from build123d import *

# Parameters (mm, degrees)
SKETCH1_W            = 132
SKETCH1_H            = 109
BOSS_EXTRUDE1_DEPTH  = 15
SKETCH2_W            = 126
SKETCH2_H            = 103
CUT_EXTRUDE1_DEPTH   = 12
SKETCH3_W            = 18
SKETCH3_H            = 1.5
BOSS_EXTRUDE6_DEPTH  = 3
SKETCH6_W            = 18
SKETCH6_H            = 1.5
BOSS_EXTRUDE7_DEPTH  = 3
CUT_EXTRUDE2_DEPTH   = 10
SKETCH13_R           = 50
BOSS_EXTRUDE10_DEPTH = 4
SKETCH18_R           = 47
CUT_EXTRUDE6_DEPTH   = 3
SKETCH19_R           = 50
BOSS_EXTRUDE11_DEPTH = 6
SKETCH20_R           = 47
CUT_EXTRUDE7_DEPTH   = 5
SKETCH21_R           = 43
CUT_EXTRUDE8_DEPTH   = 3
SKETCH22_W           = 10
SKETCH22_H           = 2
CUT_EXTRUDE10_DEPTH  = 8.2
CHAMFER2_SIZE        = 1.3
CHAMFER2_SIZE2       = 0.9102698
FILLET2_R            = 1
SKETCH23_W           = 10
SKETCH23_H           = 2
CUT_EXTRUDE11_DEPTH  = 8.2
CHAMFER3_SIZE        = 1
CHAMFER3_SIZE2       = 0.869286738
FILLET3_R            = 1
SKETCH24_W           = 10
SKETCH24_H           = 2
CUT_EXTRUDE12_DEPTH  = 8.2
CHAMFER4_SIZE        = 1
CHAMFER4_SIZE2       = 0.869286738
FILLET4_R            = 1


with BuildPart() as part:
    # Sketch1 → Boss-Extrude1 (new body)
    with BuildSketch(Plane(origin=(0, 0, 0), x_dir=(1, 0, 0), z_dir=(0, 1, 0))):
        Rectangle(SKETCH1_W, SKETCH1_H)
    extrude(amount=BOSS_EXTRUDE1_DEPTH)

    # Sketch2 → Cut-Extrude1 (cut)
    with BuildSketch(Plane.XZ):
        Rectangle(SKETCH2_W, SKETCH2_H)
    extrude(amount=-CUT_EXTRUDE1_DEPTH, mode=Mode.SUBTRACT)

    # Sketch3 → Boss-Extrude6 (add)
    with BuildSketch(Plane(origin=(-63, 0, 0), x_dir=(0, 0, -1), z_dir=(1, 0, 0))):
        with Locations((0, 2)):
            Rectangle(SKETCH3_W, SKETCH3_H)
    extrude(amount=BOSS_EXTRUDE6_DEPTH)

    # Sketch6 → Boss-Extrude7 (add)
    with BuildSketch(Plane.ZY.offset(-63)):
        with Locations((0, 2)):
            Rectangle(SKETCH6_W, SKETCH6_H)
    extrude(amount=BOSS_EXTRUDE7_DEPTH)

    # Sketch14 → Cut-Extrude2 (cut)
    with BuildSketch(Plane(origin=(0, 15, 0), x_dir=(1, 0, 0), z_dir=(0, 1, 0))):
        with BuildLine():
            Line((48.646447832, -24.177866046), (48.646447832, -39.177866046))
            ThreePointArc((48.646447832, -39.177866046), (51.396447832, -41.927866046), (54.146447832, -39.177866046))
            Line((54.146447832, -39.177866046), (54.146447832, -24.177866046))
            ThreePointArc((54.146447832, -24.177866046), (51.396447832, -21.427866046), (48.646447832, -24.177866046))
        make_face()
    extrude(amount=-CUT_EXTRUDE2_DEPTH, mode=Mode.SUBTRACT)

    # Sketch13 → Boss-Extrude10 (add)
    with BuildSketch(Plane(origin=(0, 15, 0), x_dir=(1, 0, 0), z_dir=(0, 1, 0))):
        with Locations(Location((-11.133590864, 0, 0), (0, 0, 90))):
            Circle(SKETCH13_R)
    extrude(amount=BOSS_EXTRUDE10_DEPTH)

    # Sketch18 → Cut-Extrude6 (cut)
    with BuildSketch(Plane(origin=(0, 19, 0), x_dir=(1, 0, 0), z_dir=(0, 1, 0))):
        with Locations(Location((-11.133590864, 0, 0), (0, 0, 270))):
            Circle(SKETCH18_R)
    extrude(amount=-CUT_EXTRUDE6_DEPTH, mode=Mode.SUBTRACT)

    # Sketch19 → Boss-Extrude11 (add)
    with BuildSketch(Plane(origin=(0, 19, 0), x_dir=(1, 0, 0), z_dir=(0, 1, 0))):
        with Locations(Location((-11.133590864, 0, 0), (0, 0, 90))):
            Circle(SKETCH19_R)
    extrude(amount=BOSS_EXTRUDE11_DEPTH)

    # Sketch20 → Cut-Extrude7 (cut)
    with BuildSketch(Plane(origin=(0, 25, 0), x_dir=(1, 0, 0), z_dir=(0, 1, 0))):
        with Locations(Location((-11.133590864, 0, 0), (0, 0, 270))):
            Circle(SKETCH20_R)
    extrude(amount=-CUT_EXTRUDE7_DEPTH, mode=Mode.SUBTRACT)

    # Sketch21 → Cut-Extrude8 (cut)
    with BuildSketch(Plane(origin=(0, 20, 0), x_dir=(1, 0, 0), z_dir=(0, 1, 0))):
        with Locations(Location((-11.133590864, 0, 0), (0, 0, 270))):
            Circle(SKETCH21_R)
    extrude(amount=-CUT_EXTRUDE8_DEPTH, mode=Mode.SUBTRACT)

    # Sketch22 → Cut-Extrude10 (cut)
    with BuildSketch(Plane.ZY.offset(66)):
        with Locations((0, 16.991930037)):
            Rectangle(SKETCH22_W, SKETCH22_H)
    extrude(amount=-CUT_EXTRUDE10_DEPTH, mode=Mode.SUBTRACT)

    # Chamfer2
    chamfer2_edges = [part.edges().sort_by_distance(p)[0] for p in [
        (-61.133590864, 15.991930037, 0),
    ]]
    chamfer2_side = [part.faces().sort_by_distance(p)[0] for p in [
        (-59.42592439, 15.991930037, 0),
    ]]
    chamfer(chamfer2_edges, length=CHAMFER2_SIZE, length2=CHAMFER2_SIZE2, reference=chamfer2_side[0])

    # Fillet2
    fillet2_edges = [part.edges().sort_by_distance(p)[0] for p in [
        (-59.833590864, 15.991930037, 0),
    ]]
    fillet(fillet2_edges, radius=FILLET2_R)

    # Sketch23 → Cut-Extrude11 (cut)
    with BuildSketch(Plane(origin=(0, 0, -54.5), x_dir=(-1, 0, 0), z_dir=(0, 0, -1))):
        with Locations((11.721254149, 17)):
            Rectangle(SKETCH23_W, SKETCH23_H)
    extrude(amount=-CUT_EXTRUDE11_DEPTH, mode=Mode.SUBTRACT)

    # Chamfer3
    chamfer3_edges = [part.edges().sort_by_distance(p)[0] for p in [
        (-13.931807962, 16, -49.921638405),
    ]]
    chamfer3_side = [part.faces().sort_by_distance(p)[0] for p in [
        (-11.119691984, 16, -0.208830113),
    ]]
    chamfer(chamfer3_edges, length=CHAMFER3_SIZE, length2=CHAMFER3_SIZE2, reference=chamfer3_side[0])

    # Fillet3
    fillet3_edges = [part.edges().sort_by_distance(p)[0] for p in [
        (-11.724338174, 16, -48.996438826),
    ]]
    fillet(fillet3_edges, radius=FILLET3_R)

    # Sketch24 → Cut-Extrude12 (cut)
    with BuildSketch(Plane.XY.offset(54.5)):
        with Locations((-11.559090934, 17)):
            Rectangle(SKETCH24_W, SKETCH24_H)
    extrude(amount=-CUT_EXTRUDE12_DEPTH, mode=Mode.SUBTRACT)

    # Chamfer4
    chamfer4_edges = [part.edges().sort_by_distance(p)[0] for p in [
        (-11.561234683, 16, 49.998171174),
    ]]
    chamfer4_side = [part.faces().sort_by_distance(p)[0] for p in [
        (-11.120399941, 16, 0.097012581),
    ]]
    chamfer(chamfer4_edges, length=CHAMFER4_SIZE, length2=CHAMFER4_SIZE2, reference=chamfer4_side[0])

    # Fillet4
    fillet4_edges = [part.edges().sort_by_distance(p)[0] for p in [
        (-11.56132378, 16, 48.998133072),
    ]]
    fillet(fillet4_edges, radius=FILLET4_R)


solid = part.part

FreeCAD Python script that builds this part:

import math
import FreeCAD as App
import Part
import Sketcher
Q = App.Units.Quantity


def edges_at(feature, points):
    """Names of the edges that pass closest to the given points."""
    edges = feature.Shape.Edges
    near = lambda p: min(range(len(edges)), key=lambda i: edges[i].distToShape(Part.Vertex(*p))[0])
    return sorted({f"Edge{near(p) + 1}" for p in points})


def add_polygon(sketch, points):
    """Adds a closed chain of lines whose ends are joined by coincident constraints."""
    first, n = sketch.GeometryCount, len(points)
    for a, b in zip(points, points[1:] + points[:1]):
        sketch.addGeometry(Part.LineSegment(App.Vector(*a, 0), App.Vector(*b, 0)), False)
    for i in range(n):
        sketch.addConstraint(Sketcher.Constraint("Coincident", first + i, 2, first + (i + 1) % n, 1))

doc = App.newDocument("Part")
params = doc.addObject("Spreadsheet::Sheet", "Params")
for row, (alias, value) in enumerate([
    ("sketch1_width", "132 mm"),
    ("sketch1_height", "109 mm"),
    ("pad1_length", "15 mm"),
    ("sketch2_width", "126 mm"),
    ("sketch2_height", "103 mm"),
    ("pocket1_length", "12 mm"),
    ("sketch3_height", "18 mm"),
    ("sketch3_width", "1.5 mm"),
    ("pad2_length", "3 mm"),
    ("sketch4_height", "18 mm"),
    ("sketch4_width", "1.5 mm"),
    ("pad3_length", "3 mm"),
    ("sketch5_height", "15 mm"),
    ("sketch5_radius", "2.75 mm"),
    ("pocket2_length", "10 mm"),
    ("sketch6_diameter", "100 mm"),
    ("pad4_length", "4 mm"),
    ("sketch7_diameter", "94 mm"),
    ("pocket3_length", "3 mm"),
    ("sketch8_diameter", "100 mm"),
    ("pad5_length", "6 mm"),
    ("sketch9_diameter", "94 mm"),
    ("pocket4_length", "5 mm"),
    ("sketch10_diameter", "86 mm"),
    ("pocket5_length", "3 mm"),
    ("sketch11_width", "2 mm"),
    ("sketch11_height", "10 mm"),
    ("pocket6_length", "8.2 mm"),
    ("chamfer_size", "1.3 mm"),
    ("chamfer_size2", "0.91027 mm"),
    ("fillet_radius", "1 mm"),
    ("sketch12_width", "10 mm"),
    ("sketch12_height", "2 mm"),
    ("pocket7_length", "8.2 mm"),
    ("chamfer2_size", "1 mm"),
    ("chamfer2_size2", "0.869287 mm"),
    ("fillet2_radius", "1 mm"),
    ("sketch13_width", "10 mm"),
    ("sketch13_height", "2 mm"),
    ("pocket8_length", "8.2 mm"),
    ("chamfer3_size", "1 mm"),
    ("chamfer3_size2", "0.869287 mm"),
    ("fillet3_radius", "1 mm"),
], start=1):
    params.set(f"A{row}", alias)
    params.set(f"B{row}", "=" + value)
    params.setAlias(f"B{row}", alias)

body = doc.addObject("PartDesign::Body", "Body")

# Sketch on XZ plane
sketch1 = body.newObject("Sketcher::SketchObject", "Sketch")
sketch1.AttachmentSupport = (doc.getObject("XZ_Plane"), [""])
sketch1.MapMode = "FlatFace"
add_polygon(sketch1, [(-66, -54), (-66, 54), (66, 54), (66, -54)])  # lines 0-3
sketch1.addConstraint([
    Sketcher.Constraint("Vertical", 0),
    Sketcher.Constraint("Horizontal", 1),
    Sketcher.Constraint("Vertical", 2),
    Sketcher.Constraint("Horizontal", 3),
    Sketcher.Constraint("Symmetric", 0, 2, 2, 2, -1, 1),
    Sketcher.Constraint("DistanceX", 1, 1, 1, 2, Q("132 mm")),
    Sketcher.Constraint("DistanceY", 0, 1, 0, 2, Q("109 mm")),
])
sketch1.setExpression("Constraints[9]", "Params.sketch1_width")
sketch1.setExpression("Constraints[10]", "Params.sketch1_height")
pad1 = body.newObject("PartDesign::Pad", "Pad")
pad1.Profile = sketch1
pad1.setExpression("Length", "Params.pad1_length")
pad1.Reversed = True

# Sketch on XZ plane
sketch2 = body.newObject("Sketcher::SketchObject", "Sketch001")
sketch2.AttachmentSupport = (doc.getObject("XZ_Plane"), [""])
sketch2.MapMode = "FlatFace"
add_polygon(sketch2, [(-63, 52), (-63, -52), (63, -52), (63, 52)])  # lines 0-3
sketch2.addConstraint([
    Sketcher.Constraint("Vertical", 0),
    Sketcher.Constraint("Horizontal", 1),
    Sketcher.Constraint("Vertical", 2),
    Sketcher.Constraint("Horizontal", 3),
    Sketcher.Constraint("Symmetric", 0, 2, 2, 2, -1, 1),
    Sketcher.Constraint("DistanceX", 1, 1, 1, 2, Q("126 mm")),
    Sketcher.Constraint("DistanceY", 0, 2, 0, 1, Q("103 mm")),
])
sketch2.setExpression("Constraints[9]", "Params.sketch2_width")
sketch2.setExpression("Constraints[10]", "Params.sketch2_height")
pocket1 = body.newObject("PartDesign::Pocket", "Pocket")
pocket1.Profile = sketch2
pocket1.setExpression("Length", "Params.pocket1_length")

# Sketch on YZ plane
sketch3 = body.newObject("Sketcher::SketchObject", "Sketch002")
sketch3.AttachmentSupport = (doc.getObject("YZ_Plane"), [""])
sketch3.MapMode = "FlatFace"
sketch3.AttachmentOffset = App.Placement(App.Vector(0, 0, -63), App.Rotation())
add_polygon(sketch3, [(2.8, 9), (1.2, 9), (1.2, -9), (2.8, -9)])  # lines 0-3
sketch3.addConstraint([
    Sketcher.Constraint("Horizontal", 0),
    Sketcher.Constraint("Vertical", 1),
    Sketcher.Constraint("Horizontal", 2),
    Sketcher.Constraint("Vertical", 3),
    Sketcher.Constraint("DistanceY", 1, 2, 1, 1, Q("18 mm")),
    Sketcher.Constraint("DistanceX", 0, 2, 0, 1, Q("1.5 mm")),
    Sketcher.Constraint("DistanceY", -1, 1, 0, 2, Q("9 mm")),
    Sketcher.Constraint("DistanceX", -1, 1, 0, 2, Q("1.25 mm")),
])
sketch3.setExpression("Constraints[8]", "Params.sketch3_height")
sketch3.setExpression("Constraints[9]", "Params.sketch3_width")
pad2 = body.newObject("PartDesign::Pad", "Pad001")
pad2.Profile = sketch3
pad2.setExpression("Length", "Params.pad2_length")

# Sketch on YZ plane
sketch4 = body.newObject("Sketcher::SketchObject", "Sketch003")
sketch4.AttachmentSupport = (doc.getObject("YZ_Plane"), [""])
sketch4.MapMode = "FlatFace"
sketch4.AttachmentOffset = App.Placement(App.Vector(0, 0, 63), App.Rotation())
add_polygon(sketch4, [(2.8, -9), (1.2, -9), (1.2, 9), (2.8, 9)])  # lines 0-3
sketch4.addConstraint([
    Sketcher.Constraint("Horizontal", 0),
    Sketcher.Constraint("Vertical", 1),
    Sketcher.Constraint("Horizontal", 2),
    Sketcher.Constraint("Vertical", 3),
    Sketcher.Constraint("DistanceY", 1, 1, 1, 2, Q("18 mm")),
    Sketcher.Constraint("DistanceX", 0, 2, 0, 1, Q("1.5 mm")),
    Sketcher.Constraint("DistanceY", 0, 2, -1, 1, Q("9 mm")),
    Sketcher.Constraint("DistanceX", -1, 1, 0, 2, Q("1.25 mm")),
])
sketch4.setExpression("Constraints[8]", "Params.sketch4_height")
sketch4.setExpression("Constraints[9]", "Params.sketch4_width")
pad3 = body.newObject("PartDesign::Pad", "Pad002")
pad3.Profile = sketch4
pad3.setExpression("Length", "Params.pad3_length")
pad3.Reversed = True

# Sketch on XZ plane
sketch5 = body.newObject("Sketcher::SketchObject", "Sketch004")
sketch5.AttachmentSupport = (doc.getObject("XZ_Plane"), [""])
sketch5.MapMode = "FlatFace"
sketch5.AttachmentOffset = App.Placement(App.Vector(0, 0, -15), App.Rotation())
sketch5.addGeometry([
    Part.LineSegment(App.Vector(48.6, 24.2, 0), App.Vector(48.6, 39.2, 0)),
    Part.ArcOfCircle(Part.Circle(App.Vector(51.4, 39.2, 0), App.Vector(0, 0, 1), 2.8), math.radians(0), math.radians(180)),
    Part.LineSegment(App.Vector(54.1, 39.2, 0), App.Vector(54.1, 24.2, 0)),
    Part.ArcOfCircle(Part.Circle(App.Vector(51.4, 24.2, 0), App.Vector(0, 0, 1), 2.8), math.radians(180), math.radians(360)),
], False)
sketch5.addConstraint([
    Sketcher.Constraint("Tangent", 0, 2, 1, 2),
    Sketcher.Constraint("Tangent", 1, 1, 2, 1),
    Sketcher.Constraint("Tangent", 2, 2, 3, 2),
    Sketcher.Constraint("Tangent", 3, 1, 0, 1),
    Sketcher.Constraint("Vertical", 0),
    Sketcher.Constraint("Vertical", 2),
    Sketcher.Constraint("DistanceY", 0, 1, 0, 2, Q("15 mm")),
    Sketcher.Constraint("Radius", 1, Q("2.75 mm")),
    Sketcher.Constraint("DistanceX", -1, 1, 1, 3, Q("51.396448 mm")),
    Sketcher.Constraint("DistanceY", -1, 1, 1, 3, Q("39.177866 mm")),
])
sketch5.setExpression("Constraints[6]", "Params.sketch5_height")
sketch5.setExpression("Constraints[7]", "Params.sketch5_radius")
pocket2 = body.newObject("PartDesign::Pocket", "Pocket001")
pocket2.Profile = sketch5
pocket2.setExpression("Length", "Params.pocket2_length")
pocket2.Reversed = True

# Sketch on XZ plane
sketch6 = body.newObject("Sketcher::SketchObject", "Sketch005")
sketch6.AttachmentSupport = (doc.getObject("XZ_Plane"), [""])
sketch6.MapMode = "FlatFace"
sketch6.AttachmentOffset = App.Placement(App.Vector(0, 0, -15), App.Rotation())
sketch6.addGeometry(Part.Circle(App.Vector(-11, 0, 0), App.Vector(0, 0, 1), 50), False)
sketch6.addConstraint([
    Sketcher.Constraint("PointOnObject", 0, 3, -1),
    Sketcher.Constraint("Diameter", 0, Q("100 mm")),
    Sketcher.Constraint("DistanceX", 0, 3, -1, 1, Q("11.133591 mm")),
])
sketch6.setExpression("Constraints[1]", "Params.sketch6_diameter")
pad4 = body.newObject("PartDesign::Pad", "Pad003")
pad4.Profile = sketch6
pad4.setExpression("Length", "Params.pad4_length")
pad4.Reversed = True

# Sketch on XZ plane
sketch7 = body.newObject("Sketcher::SketchObject", "Sketch006")
sketch7.AttachmentSupport = (doc.getObject("XZ_Plane"), [""])
sketch7.MapMode = "FlatFace"
sketch7.AttachmentOffset = App.Placement(App.Vector(0, 0, -19), App.Rotation())
sketch7.addGeometry(Part.Circle(App.Vector(-11, 0, 0), App.Vector(0, 0, 1), 47), False)
sketch7.addConstraint([
    Sketcher.Constraint("PointOnObject", 0, 3, -1),
    Sketcher.Constraint("Diameter", 0, Q("94 mm")),
    Sketcher.Constraint("DistanceX", 0, 3, -1, 1, Q("11.133591 mm")),
])
sketch7.setExpression("Constraints[1]", "Params.sketch7_diameter")
pocket3 = body.newObject("PartDesign::Pocket", "Pocket002")
pocket3.Profile = sketch7
pocket3.setExpression("Length", "Params.pocket3_length")
pocket3.Reversed = True

# Sketch on XZ plane
sketch8 = body.newObject("Sketcher::SketchObject", "Sketch007")
sketch8.AttachmentSupport = (doc.getObject("XZ_Plane"), [""])
sketch8.MapMode = "FlatFace"
sketch8.AttachmentOffset = App.Placement(App.Vector(0, 0, -19), App.Rotation())
sketch8.addGeometry(Part.Circle(App.Vector(-11, 0, 0), App.Vector(0, 0, 1), 50), False)
sketch8.addConstraint([
    Sketcher.Constraint("PointOnObject", 0, 3, -1),
    Sketcher.Constraint("Diameter", 0, Q("100 mm")),
    Sketcher.Constraint("DistanceX", 0, 3, -1, 1, Q("11.133591 mm")),
])
sketch8.setExpression("Constraints[1]", "Params.sketch8_diameter")
pad5 = body.newObject("PartDesign::Pad", "Pad004")
pad5.Profile = sketch8
pad5.setExpression("Length", "Params.pad5_length")
pad5.Reversed = True

# Sketch on XZ plane
sketch9 = body.newObject("Sketcher::SketchObject", "Sketch008")
sketch9.AttachmentSupport = (doc.getObject("XZ_Plane"), [""])
sketch9.MapMode = "FlatFace"
sketch9.AttachmentOffset = App.Placement(App.Vector(0, 0, -25), App.Rotation())
sketch9.addGeometry(Part.Circle(App.Vector(-11, 0, 0), App.Vector(0, 0, 1), 47), False)
sketch9.addConstraint([
    Sketcher.Constraint("PointOnObject", 0, 3, -1),
    Sketcher.Constraint("Diameter", 0, Q("94 mm")),
    Sketcher.Constraint("DistanceX", 0, 3, -1, 1, Q("11.133591 mm")),
])
sketch9.setExpression("Constraints[1]", "Params.sketch9_diameter")
pocket4 = body.newObject("PartDesign::Pocket", "Pocket003")
pocket4.Profile = sketch9
pocket4.setExpression("Length", "Params.pocket4_length")
pocket4.Reversed = True

# Sketch on XZ plane
sketch10 = body.newObject("Sketcher::SketchObject", "Sketch009")
sketch10.AttachmentSupport = (doc.getObject("XZ_Plane"), [""])
sketch10.MapMode = "FlatFace"
sketch10.AttachmentOffset = App.Placement(App.Vector(0, 0, -20), App.Rotation())
sketch10.addGeometry(Part.Circle(App.Vector(-11, 0, 0), App.Vector(0, 0, 1), 43), False)
sketch10.addConstraint([
    Sketcher.Constraint("PointOnObject", 0, 3, -1),
    Sketcher.Constraint("Diameter", 0, Q("86 mm")),
    Sketcher.Constraint("DistanceX", 0, 3, -1, 1, Q("11.133591 mm")),
])
sketch10.setExpression("Constraints[1]", "Params.sketch10_diameter")
pocket5 = body.newObject("PartDesign::Pocket", "Pocket004")
pocket5.Profile = sketch10
pocket5.setExpression("Length", "Params.pocket5_length")
pocket5.Reversed = True

# Sketch on YZ plane
sketch11 = body.newObject("Sketcher::SketchObject", "Sketch010")
sketch11.AttachmentSupport = (doc.getObject("YZ_Plane"), [""])
sketch11.MapMode = "FlatFace"
sketch11.AttachmentOffset = App.Placement(App.Vector(0, 0, -66), App.Rotation())
add_polygon(sketch11, [(18, -5), (16, -5), (16, 5), (18, 5)])  # lines 0-3
sketch11.addConstraint([
    Sketcher.Constraint("Horizontal", 0),
    Sketcher.Constraint("Vertical", 1),
    Sketcher.Constraint("Horizontal", 2),
    Sketcher.Constraint("Vertical", 3),
    Sketcher.Constraint("DistanceX", 0, 2, 0, 1, Q("2 mm")),
    Sketcher.Constraint("DistanceY", 1, 1, 1, 2, Q("10 mm")),
    Sketcher.Constraint("DistanceY", 0, 2, -1, 1, Q("5 mm")),
    Sketcher.Constraint("DistanceX", -1, 1, 0, 2, Q("15.99193 mm")),
])
sketch11.setExpression("Constraints[8]", "Params.sketch11_width")
sketch11.setExpression("Constraints[9]", "Params.sketch11_height")
pocket6 = body.newObject("PartDesign::Pocket", "Pocket005")
pocket6.Profile = sketch11
pocket6.setExpression("Length", "Params.pocket6_length")
pocket6.Reversed = True
doc.recompute()

chamfer = body.newObject("PartDesign::Chamfer", "Chamfer")
chamfer.Base = (pocket6, edges_at(pocket6, [(-61.134, 15.992, 0)]))
chamfer.ChamferType = "Two distances"
chamfer.setExpression("Size", "Params.chamfer_size")
chamfer.setExpression("Size2", "Params.chamfer_size2")
chamfer.FlipDirection = True
doc.recompute()

fillet = body.newObject("PartDesign::Fillet", "Fillet")
fillet.Base = (chamfer, edges_at(chamfer, [(-59.834, 15.992, 0)]))
fillet.setExpression("Radius", "Params.fillet_radius")

# Sketch on XY plane
sketch12 = body.newObject("Sketcher::SketchObject", "Sketch011")
sketch12.AttachmentSupport = (doc.getObject("XY_Plane"), [""])
sketch12.MapMode = "FlatFace"
sketch12.AttachmentOffset = App.Placement(App.Vector(0, 0, -54.5), App.Rotation())
add_polygon(sketch12, [(-6.7, 18), (-6.7, 16), (-16.7, 16), (-16.7, 18)])  # lines 0-3
sketch12.addConstraint([
    Sketcher.Constraint("Vertical", 0),
    Sketcher.Constraint("Horizontal", 1),
    Sketcher.Constraint("Vertical", 2),
    Sketcher.Constraint("Horizontal", 3),
    Sketcher.Constraint("DistanceX", 1, 2, 1, 1, Q("10 mm")),
    Sketcher.Constraint("DistanceY", 0, 2, 0, 1, Q("2 mm")),
    Sketcher.Constraint("DistanceY", -1, 1, 0, 2, Q("16 mm")),
    Sketcher.Constraint("DistanceX", 0, 2, -1, 1, Q("6.721254 mm")),
])
sketch12.setExpression("Constraints[8]", "Params.sketch12_width")
sketch12.setExpression("Constraints[9]", "Params.sketch12_height")
pocket7 = body.newObject("PartDesign::Pocket", "Pocket006")
pocket7.Profile = sketch12
pocket7.setExpression("Length", "Params.pocket7_length")
pocket7.Reversed = True
doc.recompute()

chamfer2 = body.newObject("PartDesign::Chamfer", "Chamfer001")
chamfer2.Base = (pocket7, edges_at(pocket7, [(-13.932, 16, -49.922)]))
chamfer2.ChamferType = "Two distances"
chamfer2.setExpression("Size", "Params.chamfer2_size")
chamfer2.setExpression("Size2", "Params.chamfer2_size2")
chamfer2.FlipDirection = True
doc.recompute()

fillet2 = body.newObject("PartDesign::Fillet", "Fillet001")
fillet2.Base = (chamfer2, edges_at(chamfer2, [(-11.724, 16, -48.996)]))
fillet2.setExpression("Radius", "Params.fillet2_radius")

# Sketch on XY plane
sketch13 = body.newObject("Sketcher::SketchObject", "Sketch012")
sketch13.AttachmentSupport = (doc.getObject("XY_Plane"), [""])
sketch13.MapMode = "FlatFace"
sketch13.AttachmentOffset = App.Placement(App.Vector(0, 0, 54.5), App.Rotation())
add_polygon(sketch13, [(-16.6, 18), (-16.6, 16), (-6.6, 16), (-6.6, 18)])  # lines 0-3
sketch13.addConstraint([
    Sketcher.Constraint("Vertical", 0),
    Sketcher.Constraint("Horizontal", 1),
    Sketcher.Constraint("Vertical", 2),
    Sketcher.Constraint("Horizontal", 3),
    Sketcher.Constraint("DistanceX", 1, 1, 1, 2, Q("10 mm")),
    Sketcher.Constraint("DistanceY", 0, 2, 0, 1, Q("2 mm")),
    Sketcher.Constraint("DistanceY", -1, 1, 0, 2, Q("16 mm")),
    Sketcher.Constraint("DistanceX", 0, 2, -1, 1, Q("16.559091 mm")),
])
sketch13.setExpression("Constraints[8]", "Params.sketch13_width")
sketch13.setExpression("Constraints[9]", "Params.sketch13_height")
pocket8 = body.newObject("PartDesign::Pocket", "Pocket007")
pocket8.Profile = sketch13
pocket8.setExpression("Length", "Params.pocket8_length")
doc.recompute()

chamfer3 = body.newObject("PartDesign::Chamfer", "Chamfer002")
chamfer3.Base = (pocket8, edges_at(pocket8, [(-11.561, 16, 49.998)]))
chamfer3.ChamferType = "Two distances"
chamfer3.setExpression("Size", "Params.chamfer3_size")
chamfer3.setExpression("Size2", "Params.chamfer3_size2")
chamfer3.FlipDirection = True
doc.recompute()

fillet3 = body.newObject("PartDesign::Fillet", "Fillet002")
fillet3.Base = (chamfer3, edges_at(chamfer3, [(-11.561, 16, 48.998)]))
fillet3.setExpression("Radius", "Params.fillet3_radius")

doc.recompute()
